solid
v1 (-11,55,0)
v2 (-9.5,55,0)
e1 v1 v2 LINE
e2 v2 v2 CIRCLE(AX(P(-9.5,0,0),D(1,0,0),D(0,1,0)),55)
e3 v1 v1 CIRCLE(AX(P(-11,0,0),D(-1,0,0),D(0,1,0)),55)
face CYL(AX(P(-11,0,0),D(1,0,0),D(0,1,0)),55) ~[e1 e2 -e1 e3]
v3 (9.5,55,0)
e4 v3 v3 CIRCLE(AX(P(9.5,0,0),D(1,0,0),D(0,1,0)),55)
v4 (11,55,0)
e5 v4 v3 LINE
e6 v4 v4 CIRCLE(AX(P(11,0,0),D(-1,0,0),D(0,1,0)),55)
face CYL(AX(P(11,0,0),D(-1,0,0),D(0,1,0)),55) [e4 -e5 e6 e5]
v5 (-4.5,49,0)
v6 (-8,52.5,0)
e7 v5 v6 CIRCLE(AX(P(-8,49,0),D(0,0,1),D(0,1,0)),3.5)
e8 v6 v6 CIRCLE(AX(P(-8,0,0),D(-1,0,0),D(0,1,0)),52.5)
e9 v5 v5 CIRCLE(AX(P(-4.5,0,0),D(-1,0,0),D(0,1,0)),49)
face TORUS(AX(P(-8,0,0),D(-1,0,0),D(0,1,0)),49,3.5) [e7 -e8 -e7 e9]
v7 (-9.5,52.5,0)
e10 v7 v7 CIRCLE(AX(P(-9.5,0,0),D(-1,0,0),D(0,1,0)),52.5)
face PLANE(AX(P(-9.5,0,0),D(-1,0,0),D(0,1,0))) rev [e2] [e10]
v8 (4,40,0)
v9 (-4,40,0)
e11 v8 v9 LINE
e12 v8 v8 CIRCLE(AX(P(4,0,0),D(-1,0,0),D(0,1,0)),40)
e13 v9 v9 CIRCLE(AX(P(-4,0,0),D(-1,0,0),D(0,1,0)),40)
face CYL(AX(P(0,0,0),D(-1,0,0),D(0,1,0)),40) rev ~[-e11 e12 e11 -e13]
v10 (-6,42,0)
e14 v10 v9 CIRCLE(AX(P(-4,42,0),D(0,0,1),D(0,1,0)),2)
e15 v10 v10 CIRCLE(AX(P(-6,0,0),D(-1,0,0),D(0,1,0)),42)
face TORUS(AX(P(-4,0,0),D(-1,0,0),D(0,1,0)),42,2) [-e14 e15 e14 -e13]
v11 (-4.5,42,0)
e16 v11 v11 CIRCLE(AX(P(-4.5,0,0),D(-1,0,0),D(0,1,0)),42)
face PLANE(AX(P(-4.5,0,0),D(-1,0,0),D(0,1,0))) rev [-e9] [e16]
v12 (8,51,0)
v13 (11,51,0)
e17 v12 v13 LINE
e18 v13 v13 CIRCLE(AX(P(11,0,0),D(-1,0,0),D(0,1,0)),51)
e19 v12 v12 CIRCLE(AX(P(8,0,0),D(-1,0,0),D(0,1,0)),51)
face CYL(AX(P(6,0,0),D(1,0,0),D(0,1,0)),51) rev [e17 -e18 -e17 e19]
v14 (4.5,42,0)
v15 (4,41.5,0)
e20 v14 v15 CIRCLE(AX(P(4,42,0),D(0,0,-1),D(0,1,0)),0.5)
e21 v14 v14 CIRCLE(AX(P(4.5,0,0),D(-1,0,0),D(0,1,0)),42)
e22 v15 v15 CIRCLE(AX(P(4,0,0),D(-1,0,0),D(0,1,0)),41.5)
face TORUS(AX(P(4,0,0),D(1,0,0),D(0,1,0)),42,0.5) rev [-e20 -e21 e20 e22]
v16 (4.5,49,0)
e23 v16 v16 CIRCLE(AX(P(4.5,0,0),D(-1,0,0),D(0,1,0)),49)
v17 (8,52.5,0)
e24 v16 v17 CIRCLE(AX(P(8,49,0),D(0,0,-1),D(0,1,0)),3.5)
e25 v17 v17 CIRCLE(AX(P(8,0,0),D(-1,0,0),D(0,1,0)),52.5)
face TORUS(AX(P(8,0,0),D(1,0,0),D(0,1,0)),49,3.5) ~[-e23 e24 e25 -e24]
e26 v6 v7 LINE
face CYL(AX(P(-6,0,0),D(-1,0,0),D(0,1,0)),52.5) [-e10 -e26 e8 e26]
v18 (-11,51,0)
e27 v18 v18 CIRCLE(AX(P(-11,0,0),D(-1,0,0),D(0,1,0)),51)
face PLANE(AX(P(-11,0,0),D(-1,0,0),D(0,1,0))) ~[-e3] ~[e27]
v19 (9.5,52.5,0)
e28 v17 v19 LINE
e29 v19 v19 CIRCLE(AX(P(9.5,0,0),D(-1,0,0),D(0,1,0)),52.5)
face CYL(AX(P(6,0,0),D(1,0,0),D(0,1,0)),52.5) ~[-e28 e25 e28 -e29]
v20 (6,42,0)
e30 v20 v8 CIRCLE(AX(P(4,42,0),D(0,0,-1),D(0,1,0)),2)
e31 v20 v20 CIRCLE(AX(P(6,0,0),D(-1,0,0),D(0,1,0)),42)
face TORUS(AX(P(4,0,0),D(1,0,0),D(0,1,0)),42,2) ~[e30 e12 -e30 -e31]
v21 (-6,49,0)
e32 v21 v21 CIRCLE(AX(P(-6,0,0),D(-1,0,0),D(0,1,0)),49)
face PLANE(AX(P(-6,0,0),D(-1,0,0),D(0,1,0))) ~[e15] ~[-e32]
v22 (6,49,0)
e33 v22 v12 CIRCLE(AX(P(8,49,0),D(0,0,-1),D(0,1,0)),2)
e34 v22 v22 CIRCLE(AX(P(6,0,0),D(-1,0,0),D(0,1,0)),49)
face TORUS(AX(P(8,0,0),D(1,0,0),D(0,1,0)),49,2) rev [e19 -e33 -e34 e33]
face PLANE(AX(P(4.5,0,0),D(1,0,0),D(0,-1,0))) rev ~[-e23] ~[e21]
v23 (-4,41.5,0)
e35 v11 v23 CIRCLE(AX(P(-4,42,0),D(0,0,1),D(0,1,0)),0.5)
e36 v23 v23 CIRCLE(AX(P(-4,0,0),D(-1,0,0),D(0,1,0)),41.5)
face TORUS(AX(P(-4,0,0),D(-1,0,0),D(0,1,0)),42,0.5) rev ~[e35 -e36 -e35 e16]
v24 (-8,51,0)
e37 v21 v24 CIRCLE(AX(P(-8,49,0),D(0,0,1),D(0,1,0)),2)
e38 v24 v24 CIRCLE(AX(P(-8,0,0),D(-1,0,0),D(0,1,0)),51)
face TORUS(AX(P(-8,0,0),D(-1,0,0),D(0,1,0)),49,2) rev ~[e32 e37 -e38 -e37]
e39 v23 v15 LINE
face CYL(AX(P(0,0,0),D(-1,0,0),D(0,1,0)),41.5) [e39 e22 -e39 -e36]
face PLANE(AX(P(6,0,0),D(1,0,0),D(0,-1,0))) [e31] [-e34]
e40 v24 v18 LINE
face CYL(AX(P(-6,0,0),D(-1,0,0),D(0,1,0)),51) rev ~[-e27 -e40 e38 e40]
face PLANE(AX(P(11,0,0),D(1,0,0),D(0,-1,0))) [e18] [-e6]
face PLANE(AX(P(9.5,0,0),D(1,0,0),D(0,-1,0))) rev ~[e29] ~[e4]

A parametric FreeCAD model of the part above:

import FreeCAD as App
import Part
import Sketcher


def edges_at(feature, points):
    """Names of the edges that pass closest to the given points."""
    edges = feature.Shape.Edges
    near = lambda p: min(range(len(edges)), key=lambda i: edges[i].distToShape(Part.Vertex(*p))[0])
    return sorted({f"Edge{near(p) + 1}" for p in points})


def faces_at(feature, points):
    """Names of the faces that lie closest to the given points."""
    faces = feature.Shape.Faces
    near = lambda p: min(range(len(faces)), key=lambda i: faces[i].distToShape(Part.Vertex(*p))[0])
    return sorted({f"Face{near(p) + 1}" for p in points})


def add_polygon(sketch, points):
    """Adds a closed chain of lines whose ends are joined by coincident constraints."""
    first, n = sketch.GeometryCount, len(points)
    for a, b in zip(points, points[1:] + points[:1]):
        sketch.addGeometry(Part.LineSegment(App.Vector(*a, 0), App.Vector(*b, 0)), False)
    for i in range(n):
        sketch.addConstraint(Sketcher.Constraint("Coincident", first + i, 2, first + (i + 1) % n, 1))

doc = App.newDocument("Part")
params = doc.addObject("Spreadsheet::Sheet", "Params")
for row, (alias, value) in enumerate([
    ("sketch1_width", "5 mm"),
    ("sketch1_width2", "6 mm"),
    ("sketch1_height", "4 mm"),
    ("revolution_angle", "360 deg"),
    ("fillet_radius", "2 mm"),
    ("fillet2_radius", "2 mm"),
    ("thickness_wall", "1.5 mm"),
], start=1):
    params.set(f"A{row}", alias)
    params.set(f"B{row}", "=" + value)
    params.setAlias(f"B{row}", alias)

body = doc.addObject("PartDesign::Body", "Body")

# Sketch on XY plane
sketch1 = body.newObject("Sketcher::SketchObject", "Sketch")
sketch1.AttachmentSupport = (doc.getObject("XY_Plane"), [""])
sketch1.MapMode = "FlatFace"
add_polygon(sketch1, [(0, 55), (-11, 55), (-11, 51), (-6, 51), (-6, 40), (0, 40)])  # lines 0-5
sketch1.addConstraint([
    Sketcher.Constraint("Horizontal", 0),
    Sketcher.Constraint("Vertical", 1),
    Sketcher.Constraint("Horizontal", 2),
    Sketcher.Constraint("Vertical", 3),
    Sketcher.Constraint("Horizontal", 4),
    Sketcher.Constraint("Vertical", 5),
    Sketcher.Constraint("PointOnObject", 4, 2, -2),
    Sketcher.Constraint("Equal", 0, 3),
    Sketcher.Constraint("DistanceX", 2, 1, 2, 2, 5.0),
    Sketcher.Constraint("DistanceX", 4, 1, 4, 2, 6.0),
    Sketcher.Constraint("DistanceY", 1, 2, 1, 1, 4.0),
    Sketcher.Constraint("DistanceY", -1, 1, 0, 2, 55.0),
])
sketch1.setExpression("Constraints[14]", "Params.sketch1_width")
sketch1.setExpression("Constraints[15]", "Params.sketch1_width2")
sketch1.setExpression("Constraints[16]", "Params.sketch1_height")
revolution = body.newObject("PartDesign::Revolution", "Revolution")
revolution.Profile = sketch1
revolution.ReferenceAxis = (sketch1, ["H_Axis"])
revolution.setExpression("Angle", "Params.revolution_angle")
doc.recompute()

fillet = body.newObject("PartDesign::Fillet", "Fillet")
fillet.Base = (revolution, edges_at(revolution, [(-6, -51, 0)]))
fillet.setExpression("Radius", "Params.fillet_radius")
doc.recompute()

fillet2 = body.newObject("PartDesign::Fillet", "Fillet001")
fillet2.Base = (fillet, edges_at(fillet, [(-6, -40, 0)]))
fillet2.setExpression("Radius", "Params.fillet2_radius")
doc.recompute()

thickness = body.newObject("PartDesign::Thickness", "Thickness")
thickness.Base = (fillet2, faces_at(fillet2, [(0, -49.756, 1.442), (-3.667, -50.386, 22.051)]))
thickness.setExpression("Value", "Params.thickness_wall")
thickness.Reversed = True
thickness.Join = "Intersection"
doc.recompute()

mirrored = body.newObject("PartDesign::Mirrored", "Mirrored")
mirrored.TransformMode = "Transform body"
mirrored.MirrorPlane = (doc.getObject("YZ_Plane"), [""])
body.Tip = mirrored

doc.recompute()
